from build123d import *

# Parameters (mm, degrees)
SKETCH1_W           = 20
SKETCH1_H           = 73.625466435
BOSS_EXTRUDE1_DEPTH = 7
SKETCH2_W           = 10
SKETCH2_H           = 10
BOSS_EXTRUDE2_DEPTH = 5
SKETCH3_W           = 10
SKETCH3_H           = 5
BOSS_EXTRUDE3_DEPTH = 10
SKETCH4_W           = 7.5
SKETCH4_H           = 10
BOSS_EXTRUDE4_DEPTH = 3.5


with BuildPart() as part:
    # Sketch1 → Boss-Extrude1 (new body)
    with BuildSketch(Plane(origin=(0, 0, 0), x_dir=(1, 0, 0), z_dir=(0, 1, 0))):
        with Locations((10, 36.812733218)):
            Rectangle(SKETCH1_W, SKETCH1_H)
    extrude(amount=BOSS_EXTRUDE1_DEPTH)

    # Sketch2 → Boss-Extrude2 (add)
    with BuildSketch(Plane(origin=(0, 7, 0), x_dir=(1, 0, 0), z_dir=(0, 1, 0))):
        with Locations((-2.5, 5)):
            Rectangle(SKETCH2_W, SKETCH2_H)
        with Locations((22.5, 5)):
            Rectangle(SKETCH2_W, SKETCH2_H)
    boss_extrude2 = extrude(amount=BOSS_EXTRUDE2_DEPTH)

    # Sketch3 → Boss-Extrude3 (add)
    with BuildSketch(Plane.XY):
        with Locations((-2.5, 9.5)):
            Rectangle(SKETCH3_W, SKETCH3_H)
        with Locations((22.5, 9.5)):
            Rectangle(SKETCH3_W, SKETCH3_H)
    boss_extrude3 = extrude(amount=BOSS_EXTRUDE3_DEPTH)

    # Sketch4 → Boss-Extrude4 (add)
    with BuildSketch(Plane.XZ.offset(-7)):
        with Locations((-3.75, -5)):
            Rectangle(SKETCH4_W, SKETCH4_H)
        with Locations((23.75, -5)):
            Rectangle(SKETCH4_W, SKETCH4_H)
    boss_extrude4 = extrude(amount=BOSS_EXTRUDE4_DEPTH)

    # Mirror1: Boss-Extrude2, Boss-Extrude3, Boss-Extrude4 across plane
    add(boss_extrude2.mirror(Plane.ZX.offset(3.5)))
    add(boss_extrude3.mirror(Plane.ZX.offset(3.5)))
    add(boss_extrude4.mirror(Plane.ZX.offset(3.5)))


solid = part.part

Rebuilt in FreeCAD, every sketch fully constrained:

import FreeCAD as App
import Part
import Sketcher

V = App.Vector


def add_polygon(sketch, points):
    """Adds a closed chain of lines whose ends are joined by coincident constraints."""
    first, n = sketch.GeometryCount, len(points)
    for a, b in zip(points, points[1:] + points[:1]):
        sketch.addGeometry(Part.LineSegment(App.Vector(*a, 0), App.Vector(*b, 0)), False)
    for i in range(n):
        sketch.addConstraint(Sketcher.Constraint("Coincident", first + i, 2, first + (i + 1) % n, 1))

doc = App.newDocument("Part")
body = doc.addObject("PartDesign::Body", "Body")

# Sketch on XZ plane
sketch1 = body.newObject("Sketcher::SketchObject", "Sketch")
sketch1.AttachmentSupport = (doc.getObject("XZ_Plane"), [""])
sketch1.MapMode = "FlatFace"
add_polygon(sketch1, [(0, -74), (0, 0), (20, 0), (20, -74)])  # lines 0-3
sketch1.addConstraint([
    Sketcher.Constraint("Vertical", 0),
    Sketcher.Constraint("Horizontal", 1),
    Sketcher.Constraint("Vertical", 2),
    Sketcher.Constraint("Horizontal", 3),
    Sketcher.Constraint("Coincident", 0, 2, -1, 1),
    Sketcher.Constraint("DistanceX", 1, 1, 1, 2, 20.0),
    Sketcher.Constraint("DistanceY", 0, 1, 0, 2, 73.625466),
])
pad1 = body.newObject("PartDesign::Pad", "Pad")
pad1.Profile = sketch1
pad1.Length = 7
pad1.Reversed = True

# Sketch on XZ plane
sketch2 = body.newObject("Sketcher::SketchObject", "Sketch001")
sketch2.AttachmentSupport = (doc.getObject("XZ_Plane"), [""])
sketch2.MapMode = "FlatFace"
sketch2.AttachmentOffset = App.Placement(V(0, 0, -7), App.Rotation())
add_polygon(sketch2, [(-8, -10), (-8, 0), (2, 0), (2, -10)])  # lines 0-3
add_polygon(sketch2, [(18, -10), (18, 0), (28, 0), (28, -10)])  # lines 4-7
sketch2.addConstraint([
    Sketcher.Constraint("Vertical", 0),
    Sketcher.Constraint("Horizontal", 1),
    Sketcher.Constraint("Vertical", 2),
    Sketcher.Constraint("Horizontal", 3),
    Sketcher.Constraint("Vertical", 4),
    Sketcher.Constraint("Horizontal", 5),
    Sketcher.Constraint("Vertical", 6),
    Sketcher.Constraint("Horizontal", 7),
    Sketcher.Constraint("PointOnObject", 0, 2, -1),
    Sketcher.Constraint("PointOnObject", 4, 2, -1),
    Sketcher.Constraint("Horizontal", 3, 2, 6, 2),
    Sketcher.Constraint("Equal", 3, 5),
    Sketcher.Constraint("Equal", 7, 0),
    Sketcher.Constraint("DistanceX", 1, 1, 1, 2, 10.0),
    Sketcher.Constraint("DistanceX", 1, 2, 4, 2, 15.0),
    Sketcher.Constraint("DistanceX", 0, 2, -1, 1, 7.5),
])
pad2 = body.newObject("PartDesign::Pad", "Pad001")
pad2.Profile = sketch2
pad2.Length = 5
pad2.Reversed = True

# Sketch on XY plane
sketch3 = body.newObject("Sketcher::SketchObject", "Sketch002")
sketch3.AttachmentSupport = (doc.getObject("XY_Plane"), [""])
sketch3.MapMode = "FlatFace"
add_polygon(sketch3, [(-8, 12), (-8, 7), (2, 7), (2, 12)])  # lines 0-3
add_polygon(sketch3, [(18, 12), (18, 7), (28, 7), (28, 12)])  # lines 4-7
sketch3.addConstraint([
    Sketcher.Constraint("Vertical", 0),
    Sketcher.Constraint("Horizontal", 1),
    Sketcher.Constraint("Vertical", 2),
    Sketcher.Constraint("Horizontal", 3),
    Sketcher.Constraint("Vertical", 4),
    Sketcher.Constraint("Horizontal", 5),
    Sketcher.Constraint("Vertical", 6),
    Sketcher.Constraint("Horizontal", 7),
    Sketcher.Constraint("Horizontal", 1, 2, 4, 2),
    Sketcher.Constraint("Horizontal", 3, 2, 6, 2),
    Sketcher.Constraint("Equal", 3, 5),
    Sketcher.Constraint("DistanceX", 1, 1, 1, 2, 10.0),
    Sketcher.Constraint("DistanceY", 0, 2, 0, 1, 5.0),
    Sketcher.Constraint("DistanceY", -1, 1, 0, 2, 7.0),
    Sketcher.Constraint("DistanceX", 1, 2, 4, 2, 15.0),
    Sketcher.Constraint("DistanceX", 0, 2, -1, 1, 7.5),
])
pad3 = body.newObject("PartDesign::Pad", "Pad002")
pad3.Profile = sketch3
pad3.Length = 10

# Sketch on XZ plane
sketch4 = body.newObject("Sketcher::SketchObject", "Sketch003")
sketch4.AttachmentSupport = (doc.getObject("XZ_Plane"), [""])
sketch4.MapMode = "FlatFace"
sketch4.AttachmentOffset = App.Placement(V(0, 0, -7), App.Rotation())
add_polygon(sketch4, [(-8, 0), (-8, -10), (0, -10), (0, 0)])  # lines 0-3
add_polygon(sketch4, [(20, 0), (20, -10), (28, -10), (28, 0)])  # lines 4-7
sketch4.addConstraint([
    Sketcher.Constraint("Vertical", 0),
    Sketcher.Constraint("Horizontal", 1),
    Sketcher.Constraint("Vertical", 2),
    Sketcher.Constraint("Horizontal", 3),
    Sketcher.Constraint("Vertical", 4),
    Sketcher.Constraint("Horizontal", 5),
    Sketcher.Constraint("Vertical", 6),
    Sketcher.Constraint("Horizontal", 7),
    Sketcher.Constraint("Coincident", 2, 2, -1, 1),
    Sketcher.Constraint("PointOnObject", 6, 2, -1),
    Sketcher.Constraint("Horizontal", 1, 2, 4, 2),
    Sketcher.Constraint("Equal", 3, 5),
    Sketcher.Constraint("DistanceY", 0, 2, 0, 1, 10.0),
    Sketcher.Constraint("DistanceX", 1, 1, 1, 2, 7.5),
    Sketcher.Constraint("DistanceX", -1, 1, 4, 2, 20.0),
])
pad4 = body.newObject("PartDesign::Pad", "Pad003")
pad4.Profile = sketch4
pad4.Length = 3.5
doc.recompute()

datumplane = body.newObject("PartDesign::Plane", "DatumPlane")
datumplane.AttachmentSupport = (doc.getObject("XZ_Plane"), [""])
datumplane.MapMode = "FlatFace"
datumplane.AttachmentOffset = App.Placement(V(0, 0, -3.5), App.Rotation())
mirrored = body.newObject("PartDesign::Mirrored", "Mirrored")
mirrored.Originals = [pad2, pad3, pad4]
mirrored.MirrorPlane = (datumplane, [""])
body.Tip = mirrored

doc.recompute()
